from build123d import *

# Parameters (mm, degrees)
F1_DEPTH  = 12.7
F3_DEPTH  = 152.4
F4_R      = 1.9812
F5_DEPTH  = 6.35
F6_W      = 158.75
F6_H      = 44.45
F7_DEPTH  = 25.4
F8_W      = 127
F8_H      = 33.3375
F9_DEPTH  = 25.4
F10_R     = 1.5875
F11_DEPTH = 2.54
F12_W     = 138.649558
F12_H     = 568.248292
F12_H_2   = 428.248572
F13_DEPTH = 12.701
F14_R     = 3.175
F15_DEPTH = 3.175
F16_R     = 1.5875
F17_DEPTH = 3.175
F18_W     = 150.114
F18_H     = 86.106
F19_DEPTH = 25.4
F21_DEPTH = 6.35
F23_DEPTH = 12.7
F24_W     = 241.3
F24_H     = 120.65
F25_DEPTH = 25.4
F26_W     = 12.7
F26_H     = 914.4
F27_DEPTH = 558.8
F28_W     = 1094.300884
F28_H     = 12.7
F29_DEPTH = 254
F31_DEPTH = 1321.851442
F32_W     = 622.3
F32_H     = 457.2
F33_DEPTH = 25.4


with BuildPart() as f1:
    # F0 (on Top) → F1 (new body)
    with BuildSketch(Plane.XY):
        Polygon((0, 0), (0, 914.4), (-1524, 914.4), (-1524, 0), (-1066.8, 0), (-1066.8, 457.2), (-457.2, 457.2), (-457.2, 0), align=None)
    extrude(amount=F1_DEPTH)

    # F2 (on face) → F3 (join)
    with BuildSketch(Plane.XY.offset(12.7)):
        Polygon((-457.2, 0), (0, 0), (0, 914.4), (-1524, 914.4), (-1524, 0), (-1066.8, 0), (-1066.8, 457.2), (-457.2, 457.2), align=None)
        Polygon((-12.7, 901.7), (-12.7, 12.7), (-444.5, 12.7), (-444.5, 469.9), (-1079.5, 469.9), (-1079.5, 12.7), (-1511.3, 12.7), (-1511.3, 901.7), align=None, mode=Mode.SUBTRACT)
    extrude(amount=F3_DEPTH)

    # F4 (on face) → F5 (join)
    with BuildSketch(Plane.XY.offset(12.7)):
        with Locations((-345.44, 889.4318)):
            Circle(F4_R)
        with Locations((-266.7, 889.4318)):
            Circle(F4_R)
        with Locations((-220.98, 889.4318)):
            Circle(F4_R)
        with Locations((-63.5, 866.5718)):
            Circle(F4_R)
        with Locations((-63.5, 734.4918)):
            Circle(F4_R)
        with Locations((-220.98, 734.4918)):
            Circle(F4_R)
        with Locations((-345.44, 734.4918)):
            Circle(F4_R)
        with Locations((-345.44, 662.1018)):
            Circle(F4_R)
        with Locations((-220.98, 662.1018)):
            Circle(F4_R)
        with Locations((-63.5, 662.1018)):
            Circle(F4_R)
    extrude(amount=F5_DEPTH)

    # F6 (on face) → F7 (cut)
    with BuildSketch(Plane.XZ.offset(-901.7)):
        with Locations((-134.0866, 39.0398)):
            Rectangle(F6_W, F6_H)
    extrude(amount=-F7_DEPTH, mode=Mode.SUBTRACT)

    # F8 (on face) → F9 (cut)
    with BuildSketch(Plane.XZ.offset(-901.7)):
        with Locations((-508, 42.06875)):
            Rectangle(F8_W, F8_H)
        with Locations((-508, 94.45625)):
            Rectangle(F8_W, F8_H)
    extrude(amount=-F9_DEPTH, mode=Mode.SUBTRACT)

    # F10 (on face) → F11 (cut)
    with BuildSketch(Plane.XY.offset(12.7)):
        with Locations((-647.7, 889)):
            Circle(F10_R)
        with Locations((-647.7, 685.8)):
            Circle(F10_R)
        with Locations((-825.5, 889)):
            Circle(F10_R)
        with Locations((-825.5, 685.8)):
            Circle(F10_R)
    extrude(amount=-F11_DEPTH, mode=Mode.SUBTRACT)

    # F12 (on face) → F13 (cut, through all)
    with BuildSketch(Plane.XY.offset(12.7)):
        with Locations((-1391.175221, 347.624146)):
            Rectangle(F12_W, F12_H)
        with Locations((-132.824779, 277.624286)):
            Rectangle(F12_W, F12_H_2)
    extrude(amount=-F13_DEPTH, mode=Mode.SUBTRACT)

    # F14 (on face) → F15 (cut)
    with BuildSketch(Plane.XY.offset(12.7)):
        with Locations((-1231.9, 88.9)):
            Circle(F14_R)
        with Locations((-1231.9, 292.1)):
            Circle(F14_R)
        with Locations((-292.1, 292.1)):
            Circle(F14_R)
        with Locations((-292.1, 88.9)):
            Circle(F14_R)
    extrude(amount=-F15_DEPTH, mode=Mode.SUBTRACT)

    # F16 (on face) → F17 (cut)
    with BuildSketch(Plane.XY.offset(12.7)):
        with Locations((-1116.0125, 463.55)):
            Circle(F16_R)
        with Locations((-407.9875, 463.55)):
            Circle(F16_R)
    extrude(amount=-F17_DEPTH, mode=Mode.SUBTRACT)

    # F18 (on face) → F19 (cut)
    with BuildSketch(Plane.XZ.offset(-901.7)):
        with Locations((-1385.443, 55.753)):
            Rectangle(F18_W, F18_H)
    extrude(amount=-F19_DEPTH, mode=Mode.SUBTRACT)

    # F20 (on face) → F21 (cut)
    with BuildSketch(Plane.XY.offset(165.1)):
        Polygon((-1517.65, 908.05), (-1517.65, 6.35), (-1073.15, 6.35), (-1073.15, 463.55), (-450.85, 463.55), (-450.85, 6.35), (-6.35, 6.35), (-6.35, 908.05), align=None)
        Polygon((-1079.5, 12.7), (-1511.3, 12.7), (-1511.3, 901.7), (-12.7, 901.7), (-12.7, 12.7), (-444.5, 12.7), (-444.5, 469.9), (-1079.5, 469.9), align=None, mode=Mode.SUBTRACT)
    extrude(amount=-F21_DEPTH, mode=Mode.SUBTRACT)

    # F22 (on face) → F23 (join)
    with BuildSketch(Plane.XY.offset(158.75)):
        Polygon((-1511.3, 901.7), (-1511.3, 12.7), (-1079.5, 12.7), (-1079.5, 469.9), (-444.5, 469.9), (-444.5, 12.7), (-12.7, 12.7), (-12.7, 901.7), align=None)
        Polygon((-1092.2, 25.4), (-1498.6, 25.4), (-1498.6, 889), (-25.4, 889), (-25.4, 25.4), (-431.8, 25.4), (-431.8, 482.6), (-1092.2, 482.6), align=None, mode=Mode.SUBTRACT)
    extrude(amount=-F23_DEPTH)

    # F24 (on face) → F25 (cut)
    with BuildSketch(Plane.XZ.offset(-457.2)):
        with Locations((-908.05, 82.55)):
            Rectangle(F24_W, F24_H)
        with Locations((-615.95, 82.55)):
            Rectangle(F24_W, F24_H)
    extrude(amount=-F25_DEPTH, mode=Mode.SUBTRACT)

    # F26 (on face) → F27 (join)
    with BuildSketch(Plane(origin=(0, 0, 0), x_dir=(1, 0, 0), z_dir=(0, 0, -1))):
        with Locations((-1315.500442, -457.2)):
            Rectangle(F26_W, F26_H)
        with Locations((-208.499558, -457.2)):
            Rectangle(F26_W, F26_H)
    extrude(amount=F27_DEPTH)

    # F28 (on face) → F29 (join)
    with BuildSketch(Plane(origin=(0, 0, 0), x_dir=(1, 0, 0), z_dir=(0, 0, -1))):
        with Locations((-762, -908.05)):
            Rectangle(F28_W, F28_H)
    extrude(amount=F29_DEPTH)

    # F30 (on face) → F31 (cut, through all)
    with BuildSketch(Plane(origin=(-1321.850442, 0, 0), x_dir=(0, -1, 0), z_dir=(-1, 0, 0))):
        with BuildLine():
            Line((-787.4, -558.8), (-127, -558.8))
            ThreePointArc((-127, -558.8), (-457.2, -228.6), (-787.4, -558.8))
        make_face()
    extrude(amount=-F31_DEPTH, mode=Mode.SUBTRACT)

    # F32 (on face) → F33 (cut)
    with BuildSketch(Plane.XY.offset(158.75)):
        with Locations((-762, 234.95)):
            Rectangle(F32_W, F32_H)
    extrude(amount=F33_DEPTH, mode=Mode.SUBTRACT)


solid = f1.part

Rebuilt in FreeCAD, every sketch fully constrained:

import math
import FreeCAD as App
import Part
import Sketcher
from FreeCAD import Vector
Q = App.Units.Quantity


def add_polygon(sketch, points):
    """Adds a closed chain of lines whose ends are joined by coincident constraints."""
    first, n = sketch.GeometryCount, len(points)
    for a, b in zip(points, points[1:] + points[:1]):
        sketch.addGeometry(Part.LineSegment(App.Vector(*a, 0), App.Vector(*b, 0)), False)
    for i in range(n):
        sketch.addConstraint(Sketcher.Constraint("Coincident", first + i, 2, first + (i + 1) % n, 1))

doc = App.newDocument("Part")
body = doc.addObject("PartDesign::Body", "Body")

sketch1 = body.newObject("Sketcher::SketchObject", "Sketch")
sketch1.AttachmentSupport = (doc.getObject("XY_Plane"), [""])
sketch1.MapMode = "FlatFace"
add_polygon(sketch1, [(0, 0), (0, 914.4), (-1524, 914.4), (-1524, 0), (-1066.8, 0), (-1066.8, 457.2), (-457.2, 457.2), (-457.2, 0)])
sketch1.addConstraint(Sketcher.Constraint("Vertical", 0))
sketch1.addConstraint(Sketcher.Constraint("Horizontal", 1))
sketch1.addConstraint(Sketcher.Constraint("Vertical", 2))
sketch1.addConstraint(Sketcher.Constraint("Horizontal", 3))
sketch1.addConstraint(Sketcher.Constraint("Vertical", 4))
sketch1.addConstraint(Sketcher.Constraint("Horizontal", 5))
sketch1.addConstraint(Sketcher.Constraint("Vertical", 6))
sketch1.addConstraint(Sketcher.Constraint("Horizontal", 7))
sketch1.addConstraint(Sketcher.Constraint("Coincident", 7, 2, -1, 1))
sketch1.addConstraint(Sketcher.Constraint("PointOnObject", 2, 2, -1))
sketch1.addConstraint(Sketcher.Constraint("Equal", 3, 7))
sketch1.addConstraint(Sketcher.Constraint("Equal", 7, 4))
sketch1.addConstraint(Sketcher.Constraint("DistanceX", 1, 2, 1, 1, Q("60 in")))
sketch1.addConstraint(Sketcher.Constraint("DistanceX", 3, 1, 3, 2, Q("18 in")))
sketch1.addConstraint(Sketcher.Constraint("DistanceY", 0, 1, 0, 2, Q("36 in")))
pad1 = body.newObject("PartDesign::Pad", "Pad")
pad1.Profile = sketch1
pad1.Length = Q("0.5 in")

sketch2 = body.newObject("Sketcher::SketchObject", "Sketch001")
sketch2.AttachmentSupport = (doc.getObject("XY_Plane"), [""])
sketch2.MapMode = "FlatFace"
sketch2.AttachmentOffset = App.Placement(Vector(0, 0, 0.5 * 25.4), App.Rotation())
add_polygon(sketch2, [(-457.2, 0), (0, 0), (0, 914.4), (-1524, 914.4), (-1524, 0), (-1066.8, 0), (-1066.8, 457.2), (-457.2, 457.2)])
add_polygon(sketch2, [(-1511.3, 901.7), (-12.7, 901.7), (-12.7, 12.7), (-444.5, 12.7), (-444.5, 469.9), (-1079.5, 469.9), (-1079.5, 12.7), (-1511.3, 12.7)])
sketch2.addConstraint(Sketcher.Constraint("Horizontal", 0))
sketch2.addConstraint(Sketcher.Constraint("Vertical", 1))
sketch2.addConstraint(Sketcher.Constraint("Horizontal", 2))
sketch2.addConstraint(Sketcher.Constraint("Vertical", 3))
sketch2.addConstraint(Sketcher.Constraint("Horizontal", 4))
sketch2.addConstraint(Sketcher.Constraint("Vertical", 5))
sketch2.addConstraint(Sketcher.Constraint("Horizontal", 6))
sketch2.addConstraint(Sketcher.Constraint("Vertical", 7))
sketch2.addConstraint(Sketcher.Constraint("Horizontal", 8))
sketch2.addConstraint(Sketcher.Constraint("Vertical", 9))
sketch2.addConstraint(Sketcher.Constraint("Horizontal", 10))
sketch2.addConstraint(Sketcher.Constraint("Vertical", 11))
sketch2.addConstraint(Sketcher.Constraint("Horizontal", 12))
sketch2.addConstraint(Sketcher.Constraint("Vertical", 13))
sketch2.addConstraint(Sketcher.Constraint("Horizontal", 14))
sketch2.addConstraint(Sketcher.Constraint("Vertical", 15))
sketch2.addConstraint(Sketcher.Constraint("Coincident", 0, 2, -1, 1))
sketch2.addConstraint(Sketcher.Constraint("PointOnObject", 3, 2, -1))
sketch2.addConstraint(Sketcher.Constraint("Horizontal", 10, 2, 13, 2))
sketch2.addConstraint(Sketcher.Constraint("Equal", 0, 4))
sketch2.addConstraint(Sketcher.Constraint("Equal", 10, 14))
sketch2.addConstraint(Sketcher.Constraint("Equal", 4, 5))
sketch2.addConstraint(Sketcher.Constraint("Equal", 7, 11))
sketch2.addConstraint(Sketcher.Constraint("DistanceX", 0, 1, 0, 2, Q("18 in")))
sketch2.addConstraint(Sketcher.Constraint("DistanceX", 2, 2, 2, 1, Q("60 in")))
sketch2.addConstraint(Sketcher.Constraint("DistanceX", 8, 1, 8, 2, Q("59 in")))
sketch2.addConstraint(Sketcher.Constraint("DistanceX", 10, 2, 10, 1, Q("17 in")))
sketch2.addConstraint(Sketcher.Constraint("DistanceY", 1, 1, 1, 2, Q("36 in")))
sketch2.addConstraint(Sketcher.Constraint("DistanceY", 9, 2, 9, 1, Q("35 in")))
sketch2.addConstraint(Sketcher.Constraint("DistanceX", 8, 2, -1, 1, Q("0.5 in")))
sketch2.addConstraint(Sketcher.Constraint("DistanceY", -1, 1, 8, 2, Q("35.5 in")))
pad2 = body.newObject("PartDesign::Pad", "Pad001")
pad2.Profile = sketch2
pad2.Length = Q("6 in")

sketch3 = body.newObject("Sketcher::SketchObject", "Sketch002")
sketch3.AttachmentSupport = (doc.getObject("XY_Plane"), [""])
sketch3.MapMode = "FlatFace"
sketch3.AttachmentOffset = App.Placement(Vector(0, 0, 0.5 * 25.4), App.Rotation())
sketch3.addGeometry(Part.Circle(Vector(-345.44, 889.4318, 0), Vector(0, 0, 1), 1.9812), False)
sketch3.addGeometry(Part.Circle(Vector(-266.7, 889.4318, 0), Vector(0, 0, 1), 1.9812), False)
sketch3.addGeometry(Part.Circle(Vector(-220.98, 889.4318, 0), Vector(0, 0, 1), 1.9812), False)
sketch3.addGeometry(Part.Circle(Vector(-63.5, 866.5718, 0), Vector(0, 0, 1), 1.9812), False)
sketch3.addGeometry(Part.Circle(Vector(-63.5, 734.4918, 0), Vector(0, 0, 1), 1.9812), False)
sketch3.addGeometry(Part.Circle(Vector(-220.98, 734.4918, 0), Vector(0, 0, 1), 1.9812), False)
sketch3.addGeometry(Part.Circle(Vector(-345.44, 734.4918, 0), Vector(0, 0, 1), 1.9812), False)
sketch3.addGeometry(Part.Circle(Vector(-345.44, 662.1018, 0), Vector(0, 0, 1), 1.9812), False)
sketch3.addGeometry(Part.Circle(Vector(-220.98, 662.1018, 0), Vector(0, 0, 1), 1.9812), False)
sketch3.addGeometry(Part.Circle(Vector(-63.5, 662.1018, 0), Vector(0, 0, 1), 1.9812), False)
sketch3.addConstraint(Sketcher.Constraint("Equal", 0, 1))
sketch3.addConstraint(Sketcher.Constraint("Equal", 1, 2))
sketch3.addConstraint(Sketcher.Constraint("Equal", 2, 3))
sketch3.addConstraint(Sketcher.Constraint("Equal", 3, 4))
sketch3.addConstraint(Sketcher.Constraint("Equal", 4, 5))
sketch3.addConstraint(Sketcher.Constraint("Equal", 5, 6))
sketch3.addConstraint(Sketcher.Constraint("Equal", 6, 7))
sketch3.addConstraint(Sketcher.Constraint("Equal", 7, 8))
sketch3.addConstraint(Sketcher.Constraint("Equal", 8, 9))
sketch3.addConstraint(Sketcher.Constraint("Horizontal", 0, 3, 1, 3))
sketch3.addConstraint(Sketcher.Constraint("Horizontal", 1, 3, 2, 3))
sketch3.addConstraint(Sketcher.Constraint("Horizontal", 4, 3, 5, 3))
sketch3.addConstraint(Sketcher.Constraint("Horizontal", 5, 3, 6, 3))
sketch3.addConstraint(Sketcher.Constraint("Horizontal", 7, 3, 8, 3))
sketch3.addConstraint(Sketcher.Constraint("Horizontal", 8, 3, 9, 3))
sketch3.addConstraint(Sketcher.Constraint("Vertical", 3, 3, 4, 3))
sketch3.addConstraint(Sketcher.Constraint("Vertical", 2, 3, 5, 3))
sketch3.addConstraint(Sketcher.Constraint("Vertical", 0, 3, 6, 3))
sketch3.addConstraint(Sketcher.Constraint("Vertical", 6, 3, 7, 3))
sketch3.addConstraint(Sketcher.Constraint("Vertical", 5, 3, 8, 3))
sketch3.addConstraint(Sketcher.Constraint("Vertical", 4, 3, 9, 3))
sketch3.addConstraint(Sketcher.Constraint("Diameter", 0, Q("0.156 in")))
sketch3.addConstraint(Sketcher.Constraint("DistanceX", 1, 3, 3, 3, Q("8 in")))
sketch3.addConstraint(Sketcher.Constraint("DistanceX", 0, 3, -1, 1, Q("13.6 in")))
sketch3.addConstraint(Sketcher.Constraint("DistanceX", 1, 3, -1, 1, Q("10.5 in")))
sketch3.addConstraint(Sketcher.Constraint("DistanceX", 2, 3, -1, 1, Q("8.7 in")))
sketch3.addConstraint(Sketcher.Constraint("DistanceY", 3, 3, 2, 3, Q("0.9 in")))
sketch3.addConstraint(Sketcher.Constraint("DistanceY", 4, 3, 3, 3, Q("5.2 in")))
sketch3.addConstraint(Sketcher.Constraint("DistanceY", 7, 3, 6, 3, Q("2.85 in")))
sketch3.addConstraint(Sketcher.Constraint("DistanceY", -1, 1, 0, 3, Q("35.017 in")))
pad3 = body.newObject("PartDesign::Pad", "Pad002")
pad3.Profile = sketch3
pad3.Length = Q("0.25 in")

sketch4 = body.newObject("Sketcher::SketchObject", "Sketch003")
sketch4.AttachmentSupport = (doc.getObject("XZ_Plane"), [""])
sketch4.MapMode = "FlatFace"
sketch4.AttachmentOffset = App.Placement(Vector(0, 0, -35.5 * 25.4), App.Rotation())
add_polygon(sketch4, [(-213.4616, 61.2648), (-213.4616, 16.8148), (-54.7116, 16.8148), (-54.7116, 61.2648)])
sketch4.addConstraint(Sketcher.Constraint("Vertical", 0))
sketch4.addConstraint(Sketcher.Constraint("Horizontal", 1))
sketch4.addConstraint(Sketcher.Constraint("Vertical", 2))
sketch4.addConstraint(Sketcher.Constraint("Horizontal", 3))
sketch4.addConstraint(Sketcher.Constraint("DistanceX", 1, 1, 1, 2, Q("6.25 in")))
sketch4.addConstraint(Sketcher.Constraint("DistanceY", 0, 2, 0, 1, Q("1.75 in")))
sketch4.addConstraint(Sketcher.Constraint("DistanceX", 0, 2, -1, 1, Q("8.404 in")))
sketch4.addConstraint(Sketcher.Constraint("DistanceY", -1, 1, 0, 2, Q("0.662 in")))
pocket1 = body.newObject("PartDesign::Pocket", "Pocket")
pocket1.Profile = sketch4
pocket1.Length = Q("1 in")

sketch5 = body.newObject("Sketcher::SketchObject", "Sketch004")
sketch5.AttachmentSupport = (doc.getObject("XZ_Plane"), [""])
sketch5.MapMode = "FlatFace"
sketch5.AttachmentOffset = App.Placement(Vector(0, 0, -35.5 * 25.4), App.Rotation())
add_polygon(sketch5, [(-571.5, 58.7375), (-571.5, 25.4), (-444.5, 25.4), (-444.5, 58.7375)])
add_polygon(sketch5, [(-571.5, 111.125), (-571.5, 77.7875), (-444.5, 77.7875), (-444.5, 111.125)])
sketch5.addConstraint(Sketcher.Constraint("Vertical", 0))
sketch5.addConstraint(Sketcher.Constraint("Horizontal", 1))
sketch5.addConstraint(Sketcher.Constraint("Vertical", 2))
sketch5.addConstraint(Sketcher.Constraint("Horizontal", 3))
sketch5.addConstraint(Sketcher.Constraint("Vertical", 4))
sketch5.addConstraint(Sketcher.Constraint("Horizontal", 5))
sketch5.addConstraint(Sketcher.Constraint("Vertical", 6))
sketch5.addConstraint(Sketcher.Constraint("Horizontal", 7))
sketch5.addConstraint(Sketcher.Constraint("Vertical", 3, 2, 4, 2))
sketch5.addConstraint(Sketcher.Constraint("Vertical", 2, 2, 5, 2))
sketch5.addConstraint(Sketcher.Constraint("Equal", 2, 4))
sketch5.addConstraint(Sketcher.Constraint("DistanceX", 1, 1, 1, 2, Q("5 in")))
sketch5.addConstraint(Sketcher.Constraint("DistanceY", -1, 1, 0, 2, Q("1 in")))
sketch5.addConstraint(Sketcher.Constraint("DistanceX", 0, 2, -1, 1, Q("22.5 in")))
sketch5.addConstraint(Sketcher.Constraint("DistanceY", 0, 2, 0, 1, Q("1.3125 in")))
sketch5.addConstraint(Sketcher.Constraint("DistanceY", 3, 2, 4, 2, Q("0.75 in")))
pocket2 = body.newObject("PartDesign::Pocket", "Pocket001")
pocket2.Profile = sketch5
pocket2.Length = Q("1 in")

sketch6 = body.newObject("Sketcher::SketchObject", "Sketch005")
sketch6.AttachmentSupport = (doc.getObject("XY_Plane"), [""])
sketch6.MapMode = "FlatFace"
sketch6.AttachmentOffset = App.Placement(Vector(0, 0, 0.5 * 25.4), App.Rotation())
sketch6.addGeometry(Part.Circle(Vector(-647.7, 889, 0), Vector(0, 0, 1), 1.5875), False)
sketch6.addGeometry(Part.Circle(Vector(-647.7, 685.8, 0), Vector(0, 0, 1), 1.5875), False)
sketch6.addGeometry(Part.Circle(Vector(-825.5, 889, 0), Vector(0, 0, 1), 1.5875), False)
sketch6.addGeometry(Part.Circle(Vector(-825.5, 685.8, 0), Vector(0, 0, 1), 1.5875), False)
sketch6.addConstraint(Sketcher.Constraint("Equal", 0, 1))
sketch6.addConstraint(Sketcher.Constraint("Equal", 1, 2))
sketch6.addConstraint(Sketcher.Constraint("Equal", 2, 3))
sketch6.addConstraint(Sketcher.Constraint("Horizontal", 0, 3, 2, 3))
sketch6.addConstraint(Sketcher.Constraint("Horizontal", 1, 3, 3, 3))
sketch6.addConstraint(Sketcher.Constraint("Vertical", 0, 3, 1, 3))
sketch6.addConstraint(Sketcher.Constraint("Vertical", 2, 3, 3, 3))
sketch6.addConstraint(Sketcher.Constraint("Diameter", 0, Q("0.125 in")))
sketch6.addConstraint(Sketcher.Constraint("DistanceY", -1, 1, 0, 3, Q("35 in")))
sketch6.addConstraint(Sketcher.Constraint("DistanceY", -1, 1, 1, 3, Q("27 in")))
sketch6.addConstraint(Sketcher.Constraint("DistanceX", 2, 3, 0, 3, Q("7 in")))
sketch6.addConstraint(Sketcher.Constraint("DistanceX", 0, 3, -1, 1, Q("25.5 in")))
pocket3 = body.newObject("PartDesign::Pocket", "Pocket002")
pocket3.Profile = sketch6
pocket3.Length = Q("0.1 in")

sketch7 = body.newObject("Sketcher::SketchObject", "Sketch006")
sketch7.AttachmentSupport = (doc.getObject("XY_Plane"), [""])
sketch7.MapMode = "FlatFace"
sketch7.AttachmentOffset = App.Placement(Vector(0, 0, 0.5 * 25.4), App.Rotation())
add_polygon(sketch7, [(-1460.5, 631.748292), (-1460.5, 63.5), (-1321.850442, 63.5), (-1321.850442, 631.748292)])
add_polygon(sketch7, [(-202.149558, 491.748572), (-202.149558, 63.5), (-63.5, 63.5), (-63.5, 491.748572)])
sketch7.addConstraint(Sketcher.Constraint("Vertical", 0))
sketch7.addConstraint(Sketcher.Constraint("Horizontal", 1))
sketch7.addConstraint(Sketcher.Constraint("Vertical", 2))
sketch7.addConstraint(Sketcher.Constraint("Horizontal", 3))
sketch7.addConstraint(Sketcher.Constraint("Vertical", 4))
sketch7.addConstraint(Sketcher.Constraint("Horizontal", 5))
sketch7.addConstraint(Sketcher.Constraint("Vertical", 6))
sketch7.addConstraint(Sketcher.Constraint("Horizontal", 7))
sketch7.addConstraint(Sketcher.Constraint("Horizontal", 1, 2, 4, 2))
sketch7.addConstraint(Sketcher.Constraint("Equal", 3, 5))
sketch7.addConstraint(Sketcher.Constraint("DistanceX", 0, 2, 5, 2, Q("55 in")))
sketch7.addConstraint(Sketcher.Constraint("DistanceX", 0, 2, -1, 1, Q("57.5 in")))
sketch7.addConstraint(Sketcher.Constraint("DistanceY", -1, 1, 0, 2, Q("2.5 in")))
sketch7.addConstraint(Sketcher.Constraint("DistanceY", 6, 2, 2, 2, Q("5.5118 in")))
sketch7.addConstraint(Sketcher.Constraint("DistanceX", 1, 1, 1, 2, Q("138.649558 mm")))
sketch7.addConstraint(Sketcher.Constraint("DistanceY", 0, 2, 0, 1, Q("568.248292 mm")))
pocket4 = body.newObject("PartDesign::Pocket", "Pocket003")
pocket4.Profile = sketch7
pocket4.Type = "ThroughAll"

sketch8 = body.newObject("Sketcher::SketchObject", "Sketch007")
sketch8.AttachmentSupport = (doc.getObject("XY_Plane"), [""])
sketch8.MapMode = "FlatFace"
sketch8.AttachmentOffset = App.Placement(Vector(0, 0, 0.5 * 25.4), App.Rotation())
sketch8.addGeometry(Part.Circle(Vector(-1231.9, 88.9, 0), Vector(0, 0, 1), 3.175), False)
sketch8.addGeometry(Part.Circle(Vector(-1231.9, 292.1, 0), Vector(0, 0, 1), 3.175), False)
sketch8.addGeometry(Part.Circle(Vector(-292.1, 292.1, 0), Vector(0, 0, 1), 3.175), False)
sketch8.addGeometry(Part.Circle(Vector(-292.1, 88.9, 0), Vector(0, 0, 1), 3.175), False)
sketch8.addConstraint(Sketcher.Constraint("Equal", 0, 1))
sketch8.addConstraint(Sketcher.Constraint("Equal", 1, 2))
sketch8.addConstraint(Sketcher.Constraint("Equal", 2, 3))
sketch8.addConstraint(Sketcher.Constraint("Horizontal", 1, 3, 2, 3))
sketch8.addConstraint(Sketcher.Constraint("Horizontal", 0, 3, 3, 3))
sketch8.addConstraint(Sketcher.Constraint("Vertical", 0, 3, 1, 3))
sketch8.addConstraint(Sketcher.Constraint("Vertical", 2, 3, 3, 3))
sketch8.addConstraint(Sketcher.Constraint("Diameter", 0, Q("0.25 in")))
sketch8.addConstraint(Sketcher.Constraint("DistanceY", 0, 3, 1, 3, Q("8 in")))
sketch8.addConstraint(Sketcher.Constraint("DistanceX", 1, 3, 2, 3, Q("37 in")))
sketch8.addConstraint(Sketcher.Constraint("DistanceX", 0, 3, -1, 1, Q("48.5 in")))
sketch8.addConstraint(Sketcher.Constraint("DistanceY", -1, 1, 0, 3, Q("3.5 in")))
pocket5 = body.newObject("PartDesign::Pocket", "Pocket004")
pocket5.Profile = sketch8
pocket5.Length = Q("0.125 in")

sketch9 = body.newObject("Sketcher::SketchObject", "Sketch008")
sketch9.AttachmentSupport = (doc.getObject("XY_Plane"), [""])
sketch9.MapMode = "FlatFace"
sketch9.AttachmentOffset = App.Placement(Vector(0, 0, 0.5 * 25.4), App.Rotation())
sketch9.addGeometry(Part.Circle(Vector(-1116.0125, 463.55, 0), Vector(0, 0, 1), 1.5875), False)
sketch9.addGeometry(Part.Circle(Vector(-407.9875, 463.55, 0), Vector(0, 0, 1), 1.5875), False)
sketch9.addConstraint(Sketcher.Constraint("Equal", 0, 1))
sketch9.addConstraint(Sketcher.Constraint("Horizontal", 0, 3, 1, 3))
sketch9.addConstraint(Sketcher.Constraint("Diameter", 0, Q("0.125 in")))
sketch9.addConstraint(Sketcher.Constraint("DistanceY", -1, 1, 0, 3, Q("18.25 in")))
sketch9.addConstraint(Sketcher.Constraint("DistanceX", 0, 3, -1, 1, Q("43.9375 in")))
sketch9.addConstraint(Sketcher.Constraint("DistanceX", 1, 3, -1, 1, Q("16.0625 in")))
pocket6 = body.newObject("PartDesign::Pocket", "Pocket005")
pocket6.Profile = sketch9
pocket6.Length = Q("0.125 in")

sketch10 = body.newObject("Sketcher::SketchObject", "Sketch009")
sketch10.AttachmentSupport = (doc.getObject("XZ_Plane"), [""])
sketch10.MapMode = "FlatFace"
sketch10.AttachmentOffset = App.Placement(Vector(0, 0, -35.5 * 25.4), App.Rotation())
add_polygon(sketch10, [(-1460.5, 98.806), (-1460.5, 12.7), (-1310.386, 12.7), (-1310.386, 98.806)])
sketch10.addConstraint(Sketcher.Constraint("Vertical", 0))
sketch10.addConstraint(Sketcher.Constraint("Horizontal", 1))
sketch10.addConstraint(Sketcher.Constraint("Vertical", 2))
sketch10.addConstraint(Sketcher.Constraint("Horizontal", 3))
sketch10.addConstraint(Sketcher.Constraint("DistanceX", 1, 1, 1, 2, Q("5.91 in")))
sketch10.addConstraint(Sketcher.Constraint("DistanceY", 0, 2, 0, 1, Q("3.39 in")))
sketch10.addConstraint(Sketcher.Constraint("DistanceX", 0, 2, -1, 1, Q("57.5 in")))
sketch10.addConstraint(Sketcher.Constraint("DistanceY", -1, 1, 0, 2, Q("0.5 in")))
pocket7 = body.newObject("PartDesign::Pocket", "Pocket006")
pocket7.Profile = sketch10
pocket7.Length = Q("1 in")

sketch11 = body.newObject("Sketcher::SketchObject", "Sketch010")
sketch11.AttachmentSupport = (doc.getObject("XY_Plane"), [""])
sketch11.MapMode = "FlatFace"
sketch11.AttachmentOffset = App.Placement(Vector(0, 0, 6.5 * 25.4), App.Rotation())
add_polygon(sketch11, [(-1517.65, 908.05), (-1517.65, 6.35), (-1073.15, 6.35), (-1073.15, 463.55), (-450.85, 463.55), (-450.85, 6.35), (-6.35, 6.35), (-6.35, 908.05)])
add_polygon(sketch11, [(-1079.5, 469.9), (-1079.5, 12.7), (-1511.3, 12.7), (-1511.3, 901.7), (-12.7, 901.7), (-12.7, 12.7), (-444.5, 12.7), (-444.5, 469.9)])
sketch11.addConstraint(Sketcher.Constraint("Vertical", 0))
sketch11.addConstraint(Sketcher.Constraint("Horizontal", 1))
sketch11.addConstraint(Sketcher.Constraint("Vertical", 2))
sketch11.addConstraint(Sketcher.Constraint("Horizontal", 3))
sketch11.addConstraint(Sketcher.Constraint("Vertical", 4))
sketch11.addConstraint(Sketcher.Constraint("Horizontal", 5))
sketch11.addConstraint(Sketcher.Constraint("Vertical", 6))
sketch11.addConstraint(Sketcher.Constraint("Horizontal", 7))
sketch11.addConstraint(Sketcher.Constraint("Vertical", 8))
sketch11.addConstraint(Sketcher.Constraint("Horizontal", 9))
sketch11.addConstraint(Sketcher.Constraint("Vertical", 10))
sketch11.addConstraint(Sketcher.Constraint("Horizontal", 11))
sketch11.addConstraint(Sketcher.Constraint("Vertical", 12))
sketch11.addConstraint(Sketcher.Constraint("Horizontal", 13))
sketch11.addConstraint(Sketcher.Constraint("Vertical", 14))
sketch11.addConstraint(Sketcher.Constraint("Horizontal", 15))
sketch11.addConstraint(Sketcher.Constraint("Horizontal", 1, 2, 4, 2))
sketch11.addConstraint(Sketcher.Constraint("Horizontal", 9, 2, 12, 2))
sketch11.addConstraint(Sketcher.Constraint("Equal", 1, 5))
sketch11.addConstraint(Sketcher.Constraint("Equal", 9, 13))
sketch11.addConstraint(Sketcher.Constraint("Equal", 4, 8))
sketch11.addConstraint(Sketcher.Constraint("DistanceX", 9, 2, 9, 1, Q("17 in")))
sketch11.addConstraint(Sketcher.Constraint("DistanceX", 11, 1, 11, 2, Q("59 in")))
sketch11.addConstraint(Sketcher.Constraint("DistanceY", 2, 1, 2, 2, Q("18 in")))
sketch11.addConstraint(Sketcher.Constraint("DistanceY", 10, 1, 10, 2, Q("35 in")))
sketch11.addConstraint(Sketcher.Constraint("DistanceX", 1, 1, 1, 2, Q("17.5 in")))
sketch11.addConstraint(Sketcher.Constraint("DistanceX", 3, 1, 3, 2, Q("24.5 in")))
sketch11.addConstraint(Sketcher.Constraint("DistanceY", 0, 2, 0, 1, Q("35.5 in")))
sketch11.addConstraint(Sketcher.Constraint("DistanceX", 8, 2, -1, 1, Q("42.5 in")))
sketch11.addConstraint(Sketcher.Constraint("DistanceY", -1, 1, 8, 2, Q("0.5 in")))
sketch11.addConstraint(Sketcher.Constraint("DistanceX", 0, 2, -1, 1, Q("59.75 in")))
sketch11.addConstraint(Sketcher.Constraint("DistanceY", -1, 1, 0, 2, Q("0.25 in")))
pocket8 = body.newObject("PartDesign::Pocket", "Pocket007")
pocket8.Profile = sketch11
pocket8.Length = Q("0.25 in")

sketch12 = body.newObject("Sketcher::SketchObject", "Sketch011")
sketch12.AttachmentSupport = (doc.getObject("XY_Plane"), [""])
sketch12.MapMode = "FlatFace"
sketch12.AttachmentOffset = App.Placement(Vector(0, 0, 6.25 * 25.4), App.Rotation())
add_polygon(sketch12, [(-1511.3, 901.7), (-1511.3, 12.7), (-1079.5, 12.7), (-1079.5, 469.9), (-444.5, 469.9), (-444.5, 12.7), (-12.7, 12.7), (-12.7, 901.7)])
add_polygon(sketch12, [(-1092.2, 482.6), (-1092.2, 25.4), (-1498.6, 25.4), (-1498.6, 889), (-25.4, 889), (-25.4, 25.4), (-431.8, 25.4), (-431.8, 482.6)])
sketch12.addConstraint(Sketcher.Constraint("Vertical", 0))
sketch12.addConstraint(Sketcher.Constraint("Horizontal", 1))
sketch12.addConstraint(Sketcher.Constraint("Vertical", 2))
sketch12.addConstraint(Sketcher.Constraint("Horizontal", 3))
sketch12.addConstraint(Sketcher.Constraint("Vertical", 4))
sketch12.addConstraint(Sketcher.Constraint("Horizontal", 5))
sketch12.addConstraint(Sketcher.Constraint("Vertical", 6))
sketch12.addConstraint(Sketcher.Constraint("Horizontal", 7))
sketch12.addConstraint(Sketcher.Constraint("Vertical", 8))
sketch12.addConstraint(Sketcher.Constraint("Horizontal", 9))
sketch12.addConstraint(Sketcher.Constraint("Vertical", 10))
sketch12.addConstraint(Sketcher.Constraint("Horizontal", 11))
sketch12.addConstraint(Sketcher.Constraint("Vertical", 12))
sketch12.addConstraint(Sketcher.Constraint("Horizontal", 13))
sketch12.addConstraint(Sketcher.Constraint("Vertical", 14))
sketch12.addConstraint(Sketcher.Constraint("Horizontal", 15))
sketch12.addConstraint(Sketcher.Constraint("Horizontal", 1, 2, 4, 2))
sketch12.addConstraint(Sketcher.Constraint("Horizontal", 9, 2, 12, 2))
sketch12.addConstraint(Sketcher.Constraint("Equal", 1, 5))
sketch12.addConstraint(Sketcher.Constraint("Equal", 9, 13))
sketch12.addConstraint(Sketcher.Constraint("Equal", 4, 8))
sketch12.addConstraint(Sketcher.Constraint("DistanceX", 1, 1, 1, 2, Q("17 in")))
sketch12.addConstraint(Sketcher.Constraint("DistanceX", 3, 1, 3, 2, Q("25 in")))
sketch12.addConstraint(Sketcher.Constraint("DistanceX", 9, 2, 9, 1, Q("16 in")))
sketch12.addConstraint(Sketcher.Constraint("DistanceX", 11, 1, 11, 2, Q("58 in")))
sketch12.addConstraint(Sketcher.Constraint("DistanceY", 0, 2, 0, 1, Q("35 in")))
sketch12.addConstraint(Sketcher.Constraint("DistanceY", 2, 1, 2, 2, Q("18 in")))
sketch12.addConstraint(Sketcher.Constraint("DistanceY", 10, 1, 10, 2, Q("34 in")))
sketch12.addConstraint(Sketcher.Constraint("DistanceX", 8, 2, -1, 1, Q("43 in")))
sketch12.addConstraint(Sketcher.Constraint("DistanceY", -1, 1, 8, 2, Q("1 in")))
sketch12.addConstraint(Sketcher.Constraint("DistanceX", 0, 2, -1, 1, Q("59.5 in")))
sketch12.addConstraint(Sketcher.Constraint("DistanceY", -1, 1, 0, 2, Q("0.5 in")))
pad4 = body.newObject("PartDesign::Pad", "Pad003")
pad4.Profile = sketch12
pad4.Length = Q("0.5 in")
pad4.Reversed = True

sketch13 = body.newObject("Sketcher::SketchObject", "Sketch012")
sketch13.AttachmentSupport = (doc.getObject("XZ_Plane"), [""])
sketch13.MapMode = "FlatFace"
sketch13.AttachmentOffset = App.Placement(Vector(0, 0, -18 * 25.4), App.Rotation())
add_polygon(sketch13, [(-1028.7, 142.875), (-1028.7, 22.225), (-787.4, 22.225), (-787.4, 142.875)])
add_polygon(sketch13, [(-736.6, 142.875), (-736.6, 22.225), (-495.3, 22.225), (-495.3, 142.875)])
sketch13.addConstraint(Sketcher.Constraint("Vertical", 0))
sketch13.addConstraint(Sketcher.Constraint("Horizontal", 1))
sketch13.addConstraint(Sketcher.Constraint("Vertical", 2))
sketch13.addConstraint(Sketcher.Constraint("Horizontal", 3))
sketch13.addConstraint(Sketcher.Constraint("Vertical", 4))
sketch13.addConstraint(Sketcher.Constraint("Horizontal", 5))
sketch13.addConstraint(Sketcher.Constraint("Vertical", 6))
sketch13.addConstraint(Sketcher.Constraint("Horizontal", 7))
sketch13.addConstraint(Sketcher.Constraint("Horizontal", 1, 2, 4, 2))
sketch13.addConstraint(Sketcher.Constraint("Horizontal", 3, 2, 6, 2))
sketch13.addConstraint(Sketcher.Constraint("Equal", 3, 5))
sketch13.addConstraint(Sketcher.Constraint("DistanceX", 1, 1, 1, 2, Q("9.5 in")))
sketch13.addConstraint(Sketcher.Constraint("DistanceX", 1, 2, -1, 1, Q("31 in")))
sketch13.addConstraint(Sketcher.Constraint("DistanceX", 4, 2, -1, 1, Q("29 in")))
sketch13.addConstraint(Sketcher.Constraint("DistanceY", 0, 2, 0, 1, Q("4.75 in")))
sketch13.addConstraint(Sketcher.Constraint("DistanceY", -1, 1, 0, 2, Q("0.875 in")))
pocket9 = body.newObject("PartDesign::Pocket", "Pocket008")
pocket9.Profile = sketch13
pocket9.Length = Q("1 in")

sketch14 = body.newObject("Sketcher::SketchObject", "Sketch013")
sketch14.AttachmentSupport = (doc.getObject("XY_Plane"), [""])
sketch14.MapMode = "FlatFace"
add_polygon(sketch14, [(-1321.850442, 0), (-1321.850442, 914.4), (-1309.150442, 914.4), (-1309.150442, 0)])
add_polygon(sketch14, [(-214.849558, 0), (-214.849558, 914.4), (-202.149558, 914.4), (-202.149558, 0)])
sketch14.addConstraint(Sketcher.Constraint("Vertical", 0))
sketch14.addConstraint(Sketcher.Constraint("Horizontal", 1))
sketch14.addConstraint(Sketcher.Constraint("Vertical", 2))
sketch14.addConstraint(Sketcher.Constraint("Horizontal", 3))
sketch14.addConstraint(Sketcher.Constraint("Vertical", 4))
sketch14.addConstraint(Sketcher.Constraint("Horizontal", 5))
sketch14.addConstraint(Sketcher.Constraint("Vertical", 6))
sketch14.addConstraint(Sketcher.Constraint("Horizontal", 7))
sketch14.addConstraint(Sketcher.Constraint("PointOnObject", 2, 2, -1))
sketch14.addConstraint(Sketcher.Constraint("PointOnObject", 6, 2, -1))
sketch14.addConstraint(Sketcher.Constraint("Horizontal", 1, 2, 4, 2))
sketch14.addConstraint(Sketcher.Constraint("Equal", 3, 5))
sketch14.addConstraint(Sketcher.Constraint("DistanceY", 0, 1, 0, 2, Q("36 in")))
sketch14.addConstraint(Sketcher.Constraint("DistanceX", 1, 1, 1, 2, Q("0.5 in")))
sketch14.addConstraint(Sketcher.Constraint("DistanceX", 0, 2, -1, 1, Q("1321.850442 mm")))
sketch14.addConstraint(Sketcher.Constraint("DistanceX", 4, 2, -1, 1, Q("214.849558 mm")))
pad5 = body.newObject("PartDesign::Pad", "Pad004")
pad5.Profile = sketch14
pad5.Length = Q("22 in")
pad5.Reversed = True

sketch15 = body.newObject("Sketcher::SketchObject", "Sketch014")
sketch15.AttachmentSupport = (doc.getObject("XY_Plane"), [""])
sketch15.MapMode = "FlatFace"
add_polygon(sketch15, [(-1309.150442, 901.7), (-1309.150442, 914.4), (-214.849558, 914.4), (-214.849558, 901.7)])
sketch15.addConstraint(Sketcher.Constraint("Vertical", 0))
sketch15.addConstraint(Sketcher.Constraint("Horizontal", 1))
sketch15.addConstraint(Sketcher.Constraint("Vertical", 2))
sketch15.addConstraint(Sketcher.Constraint("Horizontal", 3))
sketch15.addConstraint(Sketcher.Constraint("DistanceY", 0, 1, 0, 2, Q("0.5 in")))
sketch15.addConstraint(Sketcher.Constraint("DistanceY", -1, 1, 0, 2, Q("36 in")))
sketch15.addConstraint(Sketcher.Constraint("DistanceX", 1, 1, 1, 2, Q("1094.300884 mm")))
sketch15.addConstraint(Sketcher.Constraint("DistanceX", 1, 2, -1, 1, Q("214.849558 mm")))
pad6 = body.newObject("PartDesign::Pad", "Pad005")
pad6.Profile = sketch15
pad6.Length = Q("10 in")
pad6.Reversed = True

sketch16 = body.newObject("Sketcher::SketchObject", "Sketch015")
sketch16.AttachmentSupport = (doc.getObject("YZ_Plane"), [""])
sketch16.MapMode = "FlatFace"
sketch16.AttachmentOffset = App.Placement(Vector(0, 0, -1321.850442), App.Rotation())
sketch16.addGeometry(Part.LineSegment(Vector(787.4, -558.8, 0), Vector(127, -558.8, 0)), False)
sketch16.addGeometry(Part.ArcOfCircle(Part.Circle(Vector(457.2, -558.8, 0), Vector(0, 0, 1), 330.2), math.radians(0), math.radians(180)), False)
sketch16.addConstraint(Sketcher.Constraint("Coincident", 0, 1, 1, 1))
sketch16.addConstraint(Sketcher.Constraint("Coincident", 1, 2, 0, 2))
sketch16.addConstraint(Sketcher.Constraint("Horizontal", 0))
sketch16.addConstraint(Sketcher.Constraint("Horizontal", 1, 3, 0, 1))
sketch16.addConstraint(Sketcher.Constraint("Radius", 1, Q("13 in")))
sketch16.addConstraint(Sketcher.Constraint("DistanceX", -1, 1, 1, 3, Q("18 in")))
sketch16.addConstraint(Sketcher.Constraint("DistanceY", 1, 3, -1, 1, Q("22 in")))
pocket10 = body.newObject("PartDesign::Pocket", "Pocket009")
pocket10.Profile = sketch16
pocket10.Type = "ThroughAll"
pocket10.Reversed = True

sketch17 = body.newObject("Sketcher::SketchObject", "Sketch016")
sketch17.AttachmentSupport = (doc.getObject("XY_Plane"), [""])
sketch17.MapMode = "FlatFace"
sketch17.AttachmentOffset = App.Placement(Vector(0, 0, 6.25 * 25.4), App.Rotation())
add_polygon(sketch17, [(-1073.15, 463.55), (-1073.15, 6.35), (-450.85, 6.35), (-450.85, 463.55)])
sketch17.addConstraint(Sketcher.Constraint("Vertical", 0))
sketch17.addConstraint(Sketcher.Constraint("Horizontal", 1))
sketch17.addConstraint(Sketcher.Constraint("Vertical", 2))
sketch17.addConstraint(Sketcher.Constraint("Horizontal", 3))
sketch17.addConstraint(Sketcher.Constraint("DistanceY", 0, 2, 0, 1, Q("18 in")))
sketch17.addConstraint(Sketcher.Constraint("DistanceX", 1, 1, 1, 2, Q("24.5 in")))
sketch17.addConstraint(Sketcher.Constraint("DistanceX", 0, 2, -1, 1, Q("42.25 in")))
sketch17.addConstraint(Sketcher.Constraint("DistanceY", -1, 1, 0, 2, Q("0.25 in")))
pocket11 = body.newObject("PartDesign::Pocket", "Pocket010")
pocket11.Profile = sketch17
pocket11.Length = Q("1 in")
pocket11.Reversed = True

doc.recompute()
